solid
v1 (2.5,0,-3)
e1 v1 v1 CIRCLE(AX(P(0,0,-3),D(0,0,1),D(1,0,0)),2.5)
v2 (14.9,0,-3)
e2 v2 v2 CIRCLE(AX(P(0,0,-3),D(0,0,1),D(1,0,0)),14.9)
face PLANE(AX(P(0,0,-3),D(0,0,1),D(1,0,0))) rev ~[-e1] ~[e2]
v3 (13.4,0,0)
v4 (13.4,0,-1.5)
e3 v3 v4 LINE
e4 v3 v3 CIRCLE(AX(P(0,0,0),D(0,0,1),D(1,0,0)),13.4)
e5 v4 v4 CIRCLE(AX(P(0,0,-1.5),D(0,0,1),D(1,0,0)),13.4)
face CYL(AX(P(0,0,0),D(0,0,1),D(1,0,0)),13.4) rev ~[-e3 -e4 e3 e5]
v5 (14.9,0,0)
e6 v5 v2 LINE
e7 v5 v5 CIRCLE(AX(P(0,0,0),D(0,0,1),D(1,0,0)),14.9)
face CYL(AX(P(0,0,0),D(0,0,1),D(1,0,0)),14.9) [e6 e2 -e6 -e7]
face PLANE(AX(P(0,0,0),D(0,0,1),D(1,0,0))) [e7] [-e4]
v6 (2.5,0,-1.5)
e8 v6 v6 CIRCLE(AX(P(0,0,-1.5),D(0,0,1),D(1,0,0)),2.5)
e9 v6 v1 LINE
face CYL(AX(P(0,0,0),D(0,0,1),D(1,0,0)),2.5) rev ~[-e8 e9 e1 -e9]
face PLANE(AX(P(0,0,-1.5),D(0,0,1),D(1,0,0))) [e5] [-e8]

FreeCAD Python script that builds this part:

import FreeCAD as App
import Part
import Sketcher

doc = App.newDocument("Part")
body = doc.addObject("PartDesign::Body", "Body")

# Sketch on XY plane
sketch1 = body.newObject("Sketcher::SketchObject", "Sketch")
sketch1.AttachmentSupport = (doc.getObject("XY_Plane"), [""])
sketch1.MapMode = "FlatFace"
sketch1.addGeometry([
    Part.Circle(App.Vector(0, 0, 0), App.Vector(0, 0, 1), 14.9),
    Part.Circle(App.Vector(0, 0, 0), App.Vector(0, 0, 1), 2.5),
], False)
sketch1.addConstraint([
    Sketcher.Constraint("Coincident", 0, 3, -1, 1),
    Sketcher.Constraint("Coincident", 1, 3, -1, 1),
    Sketcher.Constraint("Diameter", 1, 5.0),
    Sketcher.Constraint("Diameter", 0, 29.8),
])
pad1 = body.newObject("PartDesign::Pad", "Pad")
pad1.Profile = sketch1
pad1.Length = 3
pad1.Reversed = True

# Sketch on XY plane
sketch2 = body.newObject("Sketcher::SketchObject", "Sketch001")
sketch2.AttachmentSupport = (doc.getObject("XY_Plane"), [""])
sketch2.MapMode = "FlatFace"
sketch2.addGeometry([
    Part.Circle(App.Vector(0, 0, 0), App.Vector(0, 0, 1), 13.4),
    Part.Circle(App.Vector(0, 0, 0), App.Vector(0, 0, 1), 2.5),
], False)
sketch2.addConstraint([
    Sketcher.Constraint("Coincident", 0, 3, -1, 1),
    Sketcher.Constraint("Coincident", 1, 3, -1, 1),
    Sketcher.Constraint("Diameter", 1, 5.0),
    Sketcher.Constraint("Diameter", 0, 26.8),
])
pocket1 = body.newObject("PartDesign::Pocket", "Pocket")
pocket1.Profile = sketch2
pocket1.Length = 1.5

doc.recompute()
